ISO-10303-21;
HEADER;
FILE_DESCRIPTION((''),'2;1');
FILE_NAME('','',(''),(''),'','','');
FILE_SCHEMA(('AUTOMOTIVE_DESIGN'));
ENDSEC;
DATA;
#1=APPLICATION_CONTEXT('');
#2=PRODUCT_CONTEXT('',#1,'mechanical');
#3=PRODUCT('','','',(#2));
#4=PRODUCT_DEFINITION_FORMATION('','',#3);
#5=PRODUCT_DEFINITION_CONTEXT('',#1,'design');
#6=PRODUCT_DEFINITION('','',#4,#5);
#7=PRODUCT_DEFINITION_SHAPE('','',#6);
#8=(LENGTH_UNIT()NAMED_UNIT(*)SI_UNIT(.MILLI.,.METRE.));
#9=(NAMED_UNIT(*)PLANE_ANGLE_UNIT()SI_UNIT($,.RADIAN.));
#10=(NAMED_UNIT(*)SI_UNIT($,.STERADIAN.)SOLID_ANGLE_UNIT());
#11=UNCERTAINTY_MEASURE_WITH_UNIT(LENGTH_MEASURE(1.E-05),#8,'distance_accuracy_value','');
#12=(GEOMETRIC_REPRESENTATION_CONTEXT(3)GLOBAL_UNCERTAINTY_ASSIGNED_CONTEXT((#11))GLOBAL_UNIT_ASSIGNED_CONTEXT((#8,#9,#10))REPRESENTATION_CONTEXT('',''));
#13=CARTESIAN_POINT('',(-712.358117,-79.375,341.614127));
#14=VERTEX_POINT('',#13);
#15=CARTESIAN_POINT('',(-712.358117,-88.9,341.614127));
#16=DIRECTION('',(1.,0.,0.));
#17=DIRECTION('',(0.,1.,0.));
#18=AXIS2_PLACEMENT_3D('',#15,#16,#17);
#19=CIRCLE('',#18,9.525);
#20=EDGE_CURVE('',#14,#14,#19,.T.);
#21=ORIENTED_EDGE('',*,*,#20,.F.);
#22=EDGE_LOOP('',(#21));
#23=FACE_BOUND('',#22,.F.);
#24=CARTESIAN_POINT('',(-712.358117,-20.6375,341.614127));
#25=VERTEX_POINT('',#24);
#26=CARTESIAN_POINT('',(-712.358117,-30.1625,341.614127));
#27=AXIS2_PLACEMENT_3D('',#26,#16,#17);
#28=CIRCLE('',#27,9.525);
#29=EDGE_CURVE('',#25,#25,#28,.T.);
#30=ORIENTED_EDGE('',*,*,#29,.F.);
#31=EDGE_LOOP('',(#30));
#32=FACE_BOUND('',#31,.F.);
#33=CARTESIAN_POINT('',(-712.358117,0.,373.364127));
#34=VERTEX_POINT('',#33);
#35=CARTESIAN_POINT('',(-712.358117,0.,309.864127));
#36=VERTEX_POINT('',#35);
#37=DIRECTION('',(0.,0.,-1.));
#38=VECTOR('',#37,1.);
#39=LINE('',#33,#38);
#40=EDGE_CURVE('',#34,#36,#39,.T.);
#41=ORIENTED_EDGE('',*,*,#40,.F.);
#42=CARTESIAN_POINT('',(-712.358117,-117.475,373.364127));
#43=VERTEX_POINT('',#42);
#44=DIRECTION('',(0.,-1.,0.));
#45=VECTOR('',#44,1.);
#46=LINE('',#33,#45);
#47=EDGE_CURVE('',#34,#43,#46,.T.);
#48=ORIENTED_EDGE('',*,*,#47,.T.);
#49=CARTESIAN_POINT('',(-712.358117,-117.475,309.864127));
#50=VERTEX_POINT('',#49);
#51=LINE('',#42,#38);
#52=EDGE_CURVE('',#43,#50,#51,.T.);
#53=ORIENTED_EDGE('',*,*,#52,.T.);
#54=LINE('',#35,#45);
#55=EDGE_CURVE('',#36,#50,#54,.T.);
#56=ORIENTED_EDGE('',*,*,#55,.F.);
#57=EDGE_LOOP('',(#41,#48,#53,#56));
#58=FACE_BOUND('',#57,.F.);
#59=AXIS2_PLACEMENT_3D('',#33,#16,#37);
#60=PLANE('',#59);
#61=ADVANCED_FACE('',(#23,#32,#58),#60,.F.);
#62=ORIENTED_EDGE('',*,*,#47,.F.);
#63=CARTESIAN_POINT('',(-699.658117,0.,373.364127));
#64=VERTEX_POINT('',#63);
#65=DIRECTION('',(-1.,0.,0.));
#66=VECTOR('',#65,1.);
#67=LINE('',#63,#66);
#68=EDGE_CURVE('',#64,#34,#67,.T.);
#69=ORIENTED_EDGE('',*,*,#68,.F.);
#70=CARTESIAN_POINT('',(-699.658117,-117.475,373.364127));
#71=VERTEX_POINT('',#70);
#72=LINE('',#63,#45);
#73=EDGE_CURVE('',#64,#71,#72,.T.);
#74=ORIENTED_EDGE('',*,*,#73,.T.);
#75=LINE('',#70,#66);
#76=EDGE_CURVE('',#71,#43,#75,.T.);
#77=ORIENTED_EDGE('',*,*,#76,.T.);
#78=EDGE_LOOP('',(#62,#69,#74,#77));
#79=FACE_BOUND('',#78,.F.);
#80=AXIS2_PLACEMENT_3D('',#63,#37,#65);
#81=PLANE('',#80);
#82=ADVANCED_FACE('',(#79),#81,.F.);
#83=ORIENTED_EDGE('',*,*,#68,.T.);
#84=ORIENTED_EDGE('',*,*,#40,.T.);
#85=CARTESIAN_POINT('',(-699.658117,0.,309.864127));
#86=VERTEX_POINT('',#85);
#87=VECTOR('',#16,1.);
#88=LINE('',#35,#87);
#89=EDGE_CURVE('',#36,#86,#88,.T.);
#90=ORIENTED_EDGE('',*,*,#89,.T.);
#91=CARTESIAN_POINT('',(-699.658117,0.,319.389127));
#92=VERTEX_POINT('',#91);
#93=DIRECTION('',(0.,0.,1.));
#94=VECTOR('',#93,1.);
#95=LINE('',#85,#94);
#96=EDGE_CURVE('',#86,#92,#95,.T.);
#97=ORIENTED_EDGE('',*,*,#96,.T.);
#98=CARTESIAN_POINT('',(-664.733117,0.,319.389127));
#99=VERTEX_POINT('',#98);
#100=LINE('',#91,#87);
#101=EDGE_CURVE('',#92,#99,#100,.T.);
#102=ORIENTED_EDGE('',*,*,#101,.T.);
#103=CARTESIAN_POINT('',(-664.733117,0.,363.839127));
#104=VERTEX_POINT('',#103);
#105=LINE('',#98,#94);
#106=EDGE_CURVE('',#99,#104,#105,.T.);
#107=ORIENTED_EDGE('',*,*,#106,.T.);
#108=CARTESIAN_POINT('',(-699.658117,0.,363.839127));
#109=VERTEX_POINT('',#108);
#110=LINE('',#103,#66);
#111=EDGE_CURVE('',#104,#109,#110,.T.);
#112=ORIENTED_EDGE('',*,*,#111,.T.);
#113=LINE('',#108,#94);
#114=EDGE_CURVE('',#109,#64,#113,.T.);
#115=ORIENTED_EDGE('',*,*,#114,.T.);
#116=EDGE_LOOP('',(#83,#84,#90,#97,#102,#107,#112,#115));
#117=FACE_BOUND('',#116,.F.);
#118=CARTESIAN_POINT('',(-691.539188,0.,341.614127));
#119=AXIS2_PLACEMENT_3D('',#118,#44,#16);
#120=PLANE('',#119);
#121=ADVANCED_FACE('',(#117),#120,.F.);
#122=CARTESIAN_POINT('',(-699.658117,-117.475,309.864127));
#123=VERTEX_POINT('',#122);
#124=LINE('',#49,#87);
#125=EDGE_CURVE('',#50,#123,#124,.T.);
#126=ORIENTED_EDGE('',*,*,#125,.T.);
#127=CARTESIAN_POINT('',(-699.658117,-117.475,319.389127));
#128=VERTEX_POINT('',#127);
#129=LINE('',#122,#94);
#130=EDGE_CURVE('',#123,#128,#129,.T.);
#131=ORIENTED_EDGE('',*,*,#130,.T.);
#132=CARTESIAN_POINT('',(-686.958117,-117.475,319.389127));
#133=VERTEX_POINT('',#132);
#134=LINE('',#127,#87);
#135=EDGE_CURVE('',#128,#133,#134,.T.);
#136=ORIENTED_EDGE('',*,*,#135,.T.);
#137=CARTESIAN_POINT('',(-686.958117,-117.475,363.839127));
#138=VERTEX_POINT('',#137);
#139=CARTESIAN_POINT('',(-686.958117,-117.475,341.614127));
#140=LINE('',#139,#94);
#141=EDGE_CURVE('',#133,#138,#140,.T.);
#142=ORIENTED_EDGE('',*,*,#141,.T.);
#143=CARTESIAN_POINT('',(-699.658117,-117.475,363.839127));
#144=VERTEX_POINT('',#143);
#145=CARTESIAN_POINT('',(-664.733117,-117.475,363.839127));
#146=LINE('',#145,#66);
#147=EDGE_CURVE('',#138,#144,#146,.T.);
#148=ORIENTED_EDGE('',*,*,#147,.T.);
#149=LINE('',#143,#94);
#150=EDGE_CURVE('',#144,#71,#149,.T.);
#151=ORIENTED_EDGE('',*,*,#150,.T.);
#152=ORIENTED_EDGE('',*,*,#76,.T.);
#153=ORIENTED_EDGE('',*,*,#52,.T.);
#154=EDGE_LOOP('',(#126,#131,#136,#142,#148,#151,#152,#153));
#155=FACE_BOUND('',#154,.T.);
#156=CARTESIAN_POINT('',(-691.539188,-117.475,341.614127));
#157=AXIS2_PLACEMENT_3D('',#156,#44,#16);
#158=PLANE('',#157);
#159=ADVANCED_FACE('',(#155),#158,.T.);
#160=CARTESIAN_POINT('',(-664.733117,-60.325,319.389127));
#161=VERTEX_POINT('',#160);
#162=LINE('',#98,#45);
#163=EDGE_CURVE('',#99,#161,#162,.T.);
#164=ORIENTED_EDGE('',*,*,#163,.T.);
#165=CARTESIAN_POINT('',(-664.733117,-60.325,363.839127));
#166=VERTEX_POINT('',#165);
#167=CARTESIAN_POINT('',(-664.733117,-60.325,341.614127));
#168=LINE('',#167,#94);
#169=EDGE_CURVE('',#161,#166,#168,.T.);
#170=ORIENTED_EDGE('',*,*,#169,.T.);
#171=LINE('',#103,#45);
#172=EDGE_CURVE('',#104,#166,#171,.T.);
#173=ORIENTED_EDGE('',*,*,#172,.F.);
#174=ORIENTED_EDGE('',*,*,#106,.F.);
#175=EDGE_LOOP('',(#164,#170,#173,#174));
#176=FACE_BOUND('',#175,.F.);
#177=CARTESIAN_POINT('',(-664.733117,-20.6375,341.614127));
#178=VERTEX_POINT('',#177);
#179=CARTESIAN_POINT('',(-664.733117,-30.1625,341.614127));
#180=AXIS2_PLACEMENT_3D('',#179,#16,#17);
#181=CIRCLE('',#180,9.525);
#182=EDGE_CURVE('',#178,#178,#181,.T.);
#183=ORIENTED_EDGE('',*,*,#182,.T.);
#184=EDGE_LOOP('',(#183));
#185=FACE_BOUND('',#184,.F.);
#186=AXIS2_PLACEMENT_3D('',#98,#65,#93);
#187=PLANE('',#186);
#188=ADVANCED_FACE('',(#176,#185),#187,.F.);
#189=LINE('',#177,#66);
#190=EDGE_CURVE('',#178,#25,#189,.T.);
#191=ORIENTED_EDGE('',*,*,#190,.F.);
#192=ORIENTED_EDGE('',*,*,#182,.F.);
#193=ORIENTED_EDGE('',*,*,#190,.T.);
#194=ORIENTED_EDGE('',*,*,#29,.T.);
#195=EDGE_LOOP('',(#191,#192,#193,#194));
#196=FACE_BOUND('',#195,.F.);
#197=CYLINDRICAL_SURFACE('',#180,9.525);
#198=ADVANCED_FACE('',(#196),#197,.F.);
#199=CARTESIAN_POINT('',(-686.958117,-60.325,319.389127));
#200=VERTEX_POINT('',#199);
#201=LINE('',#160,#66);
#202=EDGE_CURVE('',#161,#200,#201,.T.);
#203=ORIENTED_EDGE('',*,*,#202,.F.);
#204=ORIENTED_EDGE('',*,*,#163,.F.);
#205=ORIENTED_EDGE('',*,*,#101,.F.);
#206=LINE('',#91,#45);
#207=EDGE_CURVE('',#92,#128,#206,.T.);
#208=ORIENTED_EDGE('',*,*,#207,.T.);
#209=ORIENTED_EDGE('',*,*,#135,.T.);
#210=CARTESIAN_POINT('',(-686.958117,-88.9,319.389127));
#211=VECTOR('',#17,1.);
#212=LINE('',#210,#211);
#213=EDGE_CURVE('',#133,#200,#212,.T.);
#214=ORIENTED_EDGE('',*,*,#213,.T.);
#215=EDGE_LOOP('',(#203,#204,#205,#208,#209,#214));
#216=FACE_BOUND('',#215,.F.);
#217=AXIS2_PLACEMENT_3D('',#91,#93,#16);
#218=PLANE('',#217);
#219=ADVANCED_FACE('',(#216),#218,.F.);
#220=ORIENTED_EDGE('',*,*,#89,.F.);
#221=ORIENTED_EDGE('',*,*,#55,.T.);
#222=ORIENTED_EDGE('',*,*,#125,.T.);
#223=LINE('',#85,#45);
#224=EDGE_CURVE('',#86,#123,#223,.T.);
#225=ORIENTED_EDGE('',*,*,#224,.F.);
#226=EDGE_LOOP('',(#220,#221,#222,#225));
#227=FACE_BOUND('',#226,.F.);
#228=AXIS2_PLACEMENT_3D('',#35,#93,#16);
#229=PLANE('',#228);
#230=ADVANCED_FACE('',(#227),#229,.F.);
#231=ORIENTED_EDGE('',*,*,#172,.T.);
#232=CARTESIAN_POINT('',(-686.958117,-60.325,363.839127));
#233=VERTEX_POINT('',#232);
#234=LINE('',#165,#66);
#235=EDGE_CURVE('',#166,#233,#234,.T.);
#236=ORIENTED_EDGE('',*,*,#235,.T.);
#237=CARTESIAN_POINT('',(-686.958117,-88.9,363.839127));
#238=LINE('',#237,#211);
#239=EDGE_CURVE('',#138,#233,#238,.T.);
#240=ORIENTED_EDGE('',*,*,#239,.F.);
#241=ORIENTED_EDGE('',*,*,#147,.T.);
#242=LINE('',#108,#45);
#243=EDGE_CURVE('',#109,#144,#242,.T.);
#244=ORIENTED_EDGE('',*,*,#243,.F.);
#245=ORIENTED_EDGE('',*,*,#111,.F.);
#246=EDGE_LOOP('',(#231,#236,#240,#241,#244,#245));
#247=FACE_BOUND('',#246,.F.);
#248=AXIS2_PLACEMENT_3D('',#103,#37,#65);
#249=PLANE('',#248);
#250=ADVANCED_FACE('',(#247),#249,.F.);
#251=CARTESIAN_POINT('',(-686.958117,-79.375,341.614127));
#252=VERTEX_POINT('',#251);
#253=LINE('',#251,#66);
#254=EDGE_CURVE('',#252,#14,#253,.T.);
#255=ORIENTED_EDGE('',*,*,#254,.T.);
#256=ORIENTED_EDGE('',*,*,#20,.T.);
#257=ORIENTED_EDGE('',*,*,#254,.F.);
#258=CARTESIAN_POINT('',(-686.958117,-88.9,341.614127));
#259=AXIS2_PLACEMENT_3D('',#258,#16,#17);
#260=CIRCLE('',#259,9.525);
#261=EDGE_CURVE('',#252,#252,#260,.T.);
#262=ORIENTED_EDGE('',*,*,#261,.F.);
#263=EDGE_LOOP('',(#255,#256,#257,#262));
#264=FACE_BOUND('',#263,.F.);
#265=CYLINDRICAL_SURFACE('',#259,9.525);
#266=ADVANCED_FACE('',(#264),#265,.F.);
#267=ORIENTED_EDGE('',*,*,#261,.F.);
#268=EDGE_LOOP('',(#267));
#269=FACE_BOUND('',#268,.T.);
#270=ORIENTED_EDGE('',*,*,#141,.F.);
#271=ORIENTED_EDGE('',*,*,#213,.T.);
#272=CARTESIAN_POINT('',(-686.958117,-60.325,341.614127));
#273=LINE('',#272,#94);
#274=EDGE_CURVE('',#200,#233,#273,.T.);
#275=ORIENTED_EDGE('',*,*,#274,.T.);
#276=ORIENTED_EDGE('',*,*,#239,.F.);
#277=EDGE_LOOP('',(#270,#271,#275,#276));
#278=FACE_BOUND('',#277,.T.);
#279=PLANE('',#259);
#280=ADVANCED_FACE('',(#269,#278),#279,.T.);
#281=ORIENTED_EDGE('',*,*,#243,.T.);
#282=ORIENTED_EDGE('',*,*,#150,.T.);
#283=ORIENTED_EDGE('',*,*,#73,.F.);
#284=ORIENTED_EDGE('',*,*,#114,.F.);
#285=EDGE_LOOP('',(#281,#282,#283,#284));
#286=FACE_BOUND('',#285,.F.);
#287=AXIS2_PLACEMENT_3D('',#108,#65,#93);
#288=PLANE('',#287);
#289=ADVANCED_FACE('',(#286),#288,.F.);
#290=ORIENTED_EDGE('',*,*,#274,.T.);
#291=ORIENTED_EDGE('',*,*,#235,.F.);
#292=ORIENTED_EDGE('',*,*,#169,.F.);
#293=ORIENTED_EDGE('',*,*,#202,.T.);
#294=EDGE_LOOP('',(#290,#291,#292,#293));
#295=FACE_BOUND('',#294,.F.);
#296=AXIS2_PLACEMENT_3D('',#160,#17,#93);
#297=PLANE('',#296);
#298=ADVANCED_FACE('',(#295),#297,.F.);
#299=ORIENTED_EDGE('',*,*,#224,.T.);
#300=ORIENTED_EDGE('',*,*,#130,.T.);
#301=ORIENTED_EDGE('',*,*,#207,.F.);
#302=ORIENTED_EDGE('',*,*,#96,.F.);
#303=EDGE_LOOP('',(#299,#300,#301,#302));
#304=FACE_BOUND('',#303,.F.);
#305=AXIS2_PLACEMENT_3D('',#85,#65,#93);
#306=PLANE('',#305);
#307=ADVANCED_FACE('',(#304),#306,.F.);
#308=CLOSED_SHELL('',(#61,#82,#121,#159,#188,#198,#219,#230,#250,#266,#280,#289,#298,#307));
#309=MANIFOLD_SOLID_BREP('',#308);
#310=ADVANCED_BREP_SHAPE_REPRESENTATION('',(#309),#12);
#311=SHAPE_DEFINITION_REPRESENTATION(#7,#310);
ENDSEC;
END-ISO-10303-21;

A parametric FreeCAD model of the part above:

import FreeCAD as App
import Part
import Sketcher
Q = App.Units.Quantity


def add_polygon(sketch, points):
    """Adds a closed chain of lines whose ends are joined by coincident constraints."""
    first, n = sketch.GeometryCount, len(points)
    for a, b in zip(points, points[1:] + points[:1]):
        sketch.addGeometry(Part.LineSegment(App.Vector(*a, 0), App.Vector(*b, 0)), False)
    for i in range(n):
        sketch.addConstraint(Sketcher.Constraint("Coincident", first + i, 2, first + (i + 1) % n, 1))

doc = App.newDocument("Part")
body = doc.addObject("PartDesign::Body", "Body")

sketch1 = doc.addObject("Sketcher::SketchObject", "Sketch")
body.addObject(sketch1)
sketch1.AttachmentSupport = (doc.XZ_Plane, [""])
sketch1.MapMode = "FlatFace"
add_polygon(sketch1, [(-700, 373), (-712, 373), (-712, 310), (-700, 310), (-700, 319), (-665, 319), (-665, 364), (-700, 364)])
sketch1.addConstraint([
    Sketcher.Constraint("Horizontal", 0),
    Sketcher.Constraint("Vertical", 1),
    Sketcher.Constraint("Horizontal", 2),
    Sketcher.Constraint("Vertical", 3),
    Sketcher.Constraint("Horizontal", 4),
    Sketcher.Constraint("Vertical", 5),
    Sketcher.Constraint("Horizontal", 6),
    Sketcher.Constraint("Vertical", 7),
    Sketcher.Constraint("Vertical", 3, 2, 6, 2),
    Sketcher.Constraint("Equal", 3, 7),
    Sketcher.Constraint("DistanceX", 0, 2, 0, 1, Q("0.5 in")),
    Sketcher.Constraint("DistanceY", 1, 2, 1, 1, Q("2.5 in")),
    Sketcher.Constraint("DistanceY", 5, 1, 5, 2, Q("1.75 in")),
    Sketcher.Constraint("DistanceX", 4, 1, 4, 2, Q("1.375 in")),
    Sketcher.Constraint("DistanceX", 0, 2, -1, 1, 712.358117),
    Sketcher.Constraint("DistanceY", -1, 1, 0, 2, 373.364127),
])
pad1 = doc.addObject("PartDesign::Pad", "Pad")
body.addObject(pad1)
pad1.Profile = sketch1
pad1.Length = Q("4.625 in")

sketch2 = doc.addObject("Sketcher::SketchObject", "Sketch001")
body.addObject(sketch2)
sketch2.AttachmentSupport = (doc.YZ_Plane, [""])
sketch2.MapMode = "FlatFace"
sketch2.AttachmentOffset = App.Placement(App.Vector(0, 0, -664.733117), App.Rotation())
add_polygon(sketch2, [(-117, 364), (-117, 319), (-60, 319), (-60, 364)])
sketch2.addConstraint([
    Sketcher.Constraint("Vertical", 0),
    Sketcher.Constraint("Horizontal", 1),
    Sketcher.Constraint("Vertical", 2),
    Sketcher.Constraint("Horizontal", 3),
    Sketcher.Constraint("DistanceX", 1, 1, 1, 2, Q("2.25 in")),
    Sketcher.Constraint("DistanceY", 0, 2, 0, 1, Q("1.75 in")),
    Sketcher.Constraint("DistanceX", 0, 2, -1, 1, Q("4.625 in")),
    Sketcher.Constraint("DistanceY", -1, 1, 0, 2, 319.389127),
])
pocket1 = doc.addObject("PartDesign::Pocket", "Pocket")
body.addObject(pocket1)
pocket1.Profile = sketch2
pocket1.Length = Q("0.875 in")

sketch3 = doc.addObject("Sketcher::SketchObject", "Sketch002")
body.addObject(sketch3)
sketch3.AttachmentSupport = (doc.YZ_Plane, [""])
sketch3.MapMode = "FlatFace"
sketch3.AttachmentOffset = App.Placement(App.Vector(0, 0, -686.958117), App.Rotation())
sketch3.addGeometry(Part.Circle(App.Vector(-89, 342, 0), App.Vector(0, 0, 1), 10), False)
sketch3.addConstraint([
    Sketcher.Constraint("Diameter", 0, Q("0.75 in")),
    Sketcher.Constraint("DistanceX", 0, 3, -1, 1, Q("3.5 in")),
    Sketcher.Constraint("DistanceY", -1, 1, 0, 3, 341.614127),
])
pocket2 = doc.addObject("PartDesign::Pocket", "Pocket001")
body.addObject(pocket2)
pocket2.Profile = sketch3
pocket2.Type = "ThroughAll"

sketch4 = doc.addObject("Sketcher::SketchObject", "Sketch003")
body.addObject(sketch4)
sketch4.AttachmentSupport = (doc.YZ_Plane, [""])
sketch4.MapMode = "FlatFace"
sketch4.AttachmentOffset = App.Placement(App.Vector(0, 0, -664.733117), App.Rotation())
sketch4.addGeometry(Part.Circle(App.Vector(-30, 342, 0), App.Vector(0, 0, 1), 10), False)
sketch4.addConstraint([
    Sketcher.Constraint("Diameter", 0, Q("0.75 in")),
    Sketcher.Constraint("DistanceX", 0, 3, -1, 1, Q("1.1875 in")),
    Sketcher.Constraint("DistanceY", -1, 1, 0, 3, 341.614127),
])
pocket3 = doc.addObject("PartDesign::Pocket", "Pocket002")
body.addObject(pocket3)
pocket3.Profile = sketch4
pocket3.Type = "ThroughAll"

doc.recompute()
